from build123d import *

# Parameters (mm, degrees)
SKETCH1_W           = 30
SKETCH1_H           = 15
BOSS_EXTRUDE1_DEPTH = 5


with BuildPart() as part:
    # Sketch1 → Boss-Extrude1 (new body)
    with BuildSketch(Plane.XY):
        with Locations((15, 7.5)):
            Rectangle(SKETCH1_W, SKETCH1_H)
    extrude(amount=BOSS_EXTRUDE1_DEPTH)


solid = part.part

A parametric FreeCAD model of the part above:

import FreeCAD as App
import Part
import Sketcher
from FreeCAD import Vector
Q = App.Units.Quantity


def add_polygon(sketch, points):
    """Adds a closed chain of lines whose ends are joined by coincident constraints."""
    first, n = sketch.GeometryCount, len(points)
    for a, b in zip(points, points[1:] + points[:1]):
        sketch.addGeometry(Part.LineSegment(App.Vector(*a, 0), App.Vector(*b, 0)), False)
    for i in range(n):
        sketch.addConstraint(Sketcher.Constraint("Coincident", first + i, 2, first + (i + 1) % n, 1))

doc = App.newDocument("Part")
body = doc.addObject("PartDesign::Body", "Body")

sketch1 = body.newObject("Sketcher::SketchObject", "Sketch")
sketch1.AttachmentSupport = (doc.getObject("XY_Plane"), [""])
sketch1.MapMode = "FlatFace"
add_polygon(sketch1, [(0, 15), (0, 0), (30, 0), (30, 15)])
sketch1.addConstraint([
    Sketcher.Constraint("Vertical", 0),
    Sketcher.Constraint("Horizontal", 1),
    Sketcher.Constraint("Vertical", 2),
    Sketcher.Constraint("Horizontal", 3),
    Sketcher.Constraint("Coincident", 0, 2, -1, 1),
    Sketcher.Constraint("DistanceX", 1, 1, 1, 2, Q("30 mm")),
    Sketcher.Constraint("DistanceY", 0, 2, 0, 1, Q("15 mm")),
])
pad1 = body.newObject("PartDesign::Pad", "Pad")
pad1.Profile = sketch1
pad1.Length = 5

doc.recompute()
